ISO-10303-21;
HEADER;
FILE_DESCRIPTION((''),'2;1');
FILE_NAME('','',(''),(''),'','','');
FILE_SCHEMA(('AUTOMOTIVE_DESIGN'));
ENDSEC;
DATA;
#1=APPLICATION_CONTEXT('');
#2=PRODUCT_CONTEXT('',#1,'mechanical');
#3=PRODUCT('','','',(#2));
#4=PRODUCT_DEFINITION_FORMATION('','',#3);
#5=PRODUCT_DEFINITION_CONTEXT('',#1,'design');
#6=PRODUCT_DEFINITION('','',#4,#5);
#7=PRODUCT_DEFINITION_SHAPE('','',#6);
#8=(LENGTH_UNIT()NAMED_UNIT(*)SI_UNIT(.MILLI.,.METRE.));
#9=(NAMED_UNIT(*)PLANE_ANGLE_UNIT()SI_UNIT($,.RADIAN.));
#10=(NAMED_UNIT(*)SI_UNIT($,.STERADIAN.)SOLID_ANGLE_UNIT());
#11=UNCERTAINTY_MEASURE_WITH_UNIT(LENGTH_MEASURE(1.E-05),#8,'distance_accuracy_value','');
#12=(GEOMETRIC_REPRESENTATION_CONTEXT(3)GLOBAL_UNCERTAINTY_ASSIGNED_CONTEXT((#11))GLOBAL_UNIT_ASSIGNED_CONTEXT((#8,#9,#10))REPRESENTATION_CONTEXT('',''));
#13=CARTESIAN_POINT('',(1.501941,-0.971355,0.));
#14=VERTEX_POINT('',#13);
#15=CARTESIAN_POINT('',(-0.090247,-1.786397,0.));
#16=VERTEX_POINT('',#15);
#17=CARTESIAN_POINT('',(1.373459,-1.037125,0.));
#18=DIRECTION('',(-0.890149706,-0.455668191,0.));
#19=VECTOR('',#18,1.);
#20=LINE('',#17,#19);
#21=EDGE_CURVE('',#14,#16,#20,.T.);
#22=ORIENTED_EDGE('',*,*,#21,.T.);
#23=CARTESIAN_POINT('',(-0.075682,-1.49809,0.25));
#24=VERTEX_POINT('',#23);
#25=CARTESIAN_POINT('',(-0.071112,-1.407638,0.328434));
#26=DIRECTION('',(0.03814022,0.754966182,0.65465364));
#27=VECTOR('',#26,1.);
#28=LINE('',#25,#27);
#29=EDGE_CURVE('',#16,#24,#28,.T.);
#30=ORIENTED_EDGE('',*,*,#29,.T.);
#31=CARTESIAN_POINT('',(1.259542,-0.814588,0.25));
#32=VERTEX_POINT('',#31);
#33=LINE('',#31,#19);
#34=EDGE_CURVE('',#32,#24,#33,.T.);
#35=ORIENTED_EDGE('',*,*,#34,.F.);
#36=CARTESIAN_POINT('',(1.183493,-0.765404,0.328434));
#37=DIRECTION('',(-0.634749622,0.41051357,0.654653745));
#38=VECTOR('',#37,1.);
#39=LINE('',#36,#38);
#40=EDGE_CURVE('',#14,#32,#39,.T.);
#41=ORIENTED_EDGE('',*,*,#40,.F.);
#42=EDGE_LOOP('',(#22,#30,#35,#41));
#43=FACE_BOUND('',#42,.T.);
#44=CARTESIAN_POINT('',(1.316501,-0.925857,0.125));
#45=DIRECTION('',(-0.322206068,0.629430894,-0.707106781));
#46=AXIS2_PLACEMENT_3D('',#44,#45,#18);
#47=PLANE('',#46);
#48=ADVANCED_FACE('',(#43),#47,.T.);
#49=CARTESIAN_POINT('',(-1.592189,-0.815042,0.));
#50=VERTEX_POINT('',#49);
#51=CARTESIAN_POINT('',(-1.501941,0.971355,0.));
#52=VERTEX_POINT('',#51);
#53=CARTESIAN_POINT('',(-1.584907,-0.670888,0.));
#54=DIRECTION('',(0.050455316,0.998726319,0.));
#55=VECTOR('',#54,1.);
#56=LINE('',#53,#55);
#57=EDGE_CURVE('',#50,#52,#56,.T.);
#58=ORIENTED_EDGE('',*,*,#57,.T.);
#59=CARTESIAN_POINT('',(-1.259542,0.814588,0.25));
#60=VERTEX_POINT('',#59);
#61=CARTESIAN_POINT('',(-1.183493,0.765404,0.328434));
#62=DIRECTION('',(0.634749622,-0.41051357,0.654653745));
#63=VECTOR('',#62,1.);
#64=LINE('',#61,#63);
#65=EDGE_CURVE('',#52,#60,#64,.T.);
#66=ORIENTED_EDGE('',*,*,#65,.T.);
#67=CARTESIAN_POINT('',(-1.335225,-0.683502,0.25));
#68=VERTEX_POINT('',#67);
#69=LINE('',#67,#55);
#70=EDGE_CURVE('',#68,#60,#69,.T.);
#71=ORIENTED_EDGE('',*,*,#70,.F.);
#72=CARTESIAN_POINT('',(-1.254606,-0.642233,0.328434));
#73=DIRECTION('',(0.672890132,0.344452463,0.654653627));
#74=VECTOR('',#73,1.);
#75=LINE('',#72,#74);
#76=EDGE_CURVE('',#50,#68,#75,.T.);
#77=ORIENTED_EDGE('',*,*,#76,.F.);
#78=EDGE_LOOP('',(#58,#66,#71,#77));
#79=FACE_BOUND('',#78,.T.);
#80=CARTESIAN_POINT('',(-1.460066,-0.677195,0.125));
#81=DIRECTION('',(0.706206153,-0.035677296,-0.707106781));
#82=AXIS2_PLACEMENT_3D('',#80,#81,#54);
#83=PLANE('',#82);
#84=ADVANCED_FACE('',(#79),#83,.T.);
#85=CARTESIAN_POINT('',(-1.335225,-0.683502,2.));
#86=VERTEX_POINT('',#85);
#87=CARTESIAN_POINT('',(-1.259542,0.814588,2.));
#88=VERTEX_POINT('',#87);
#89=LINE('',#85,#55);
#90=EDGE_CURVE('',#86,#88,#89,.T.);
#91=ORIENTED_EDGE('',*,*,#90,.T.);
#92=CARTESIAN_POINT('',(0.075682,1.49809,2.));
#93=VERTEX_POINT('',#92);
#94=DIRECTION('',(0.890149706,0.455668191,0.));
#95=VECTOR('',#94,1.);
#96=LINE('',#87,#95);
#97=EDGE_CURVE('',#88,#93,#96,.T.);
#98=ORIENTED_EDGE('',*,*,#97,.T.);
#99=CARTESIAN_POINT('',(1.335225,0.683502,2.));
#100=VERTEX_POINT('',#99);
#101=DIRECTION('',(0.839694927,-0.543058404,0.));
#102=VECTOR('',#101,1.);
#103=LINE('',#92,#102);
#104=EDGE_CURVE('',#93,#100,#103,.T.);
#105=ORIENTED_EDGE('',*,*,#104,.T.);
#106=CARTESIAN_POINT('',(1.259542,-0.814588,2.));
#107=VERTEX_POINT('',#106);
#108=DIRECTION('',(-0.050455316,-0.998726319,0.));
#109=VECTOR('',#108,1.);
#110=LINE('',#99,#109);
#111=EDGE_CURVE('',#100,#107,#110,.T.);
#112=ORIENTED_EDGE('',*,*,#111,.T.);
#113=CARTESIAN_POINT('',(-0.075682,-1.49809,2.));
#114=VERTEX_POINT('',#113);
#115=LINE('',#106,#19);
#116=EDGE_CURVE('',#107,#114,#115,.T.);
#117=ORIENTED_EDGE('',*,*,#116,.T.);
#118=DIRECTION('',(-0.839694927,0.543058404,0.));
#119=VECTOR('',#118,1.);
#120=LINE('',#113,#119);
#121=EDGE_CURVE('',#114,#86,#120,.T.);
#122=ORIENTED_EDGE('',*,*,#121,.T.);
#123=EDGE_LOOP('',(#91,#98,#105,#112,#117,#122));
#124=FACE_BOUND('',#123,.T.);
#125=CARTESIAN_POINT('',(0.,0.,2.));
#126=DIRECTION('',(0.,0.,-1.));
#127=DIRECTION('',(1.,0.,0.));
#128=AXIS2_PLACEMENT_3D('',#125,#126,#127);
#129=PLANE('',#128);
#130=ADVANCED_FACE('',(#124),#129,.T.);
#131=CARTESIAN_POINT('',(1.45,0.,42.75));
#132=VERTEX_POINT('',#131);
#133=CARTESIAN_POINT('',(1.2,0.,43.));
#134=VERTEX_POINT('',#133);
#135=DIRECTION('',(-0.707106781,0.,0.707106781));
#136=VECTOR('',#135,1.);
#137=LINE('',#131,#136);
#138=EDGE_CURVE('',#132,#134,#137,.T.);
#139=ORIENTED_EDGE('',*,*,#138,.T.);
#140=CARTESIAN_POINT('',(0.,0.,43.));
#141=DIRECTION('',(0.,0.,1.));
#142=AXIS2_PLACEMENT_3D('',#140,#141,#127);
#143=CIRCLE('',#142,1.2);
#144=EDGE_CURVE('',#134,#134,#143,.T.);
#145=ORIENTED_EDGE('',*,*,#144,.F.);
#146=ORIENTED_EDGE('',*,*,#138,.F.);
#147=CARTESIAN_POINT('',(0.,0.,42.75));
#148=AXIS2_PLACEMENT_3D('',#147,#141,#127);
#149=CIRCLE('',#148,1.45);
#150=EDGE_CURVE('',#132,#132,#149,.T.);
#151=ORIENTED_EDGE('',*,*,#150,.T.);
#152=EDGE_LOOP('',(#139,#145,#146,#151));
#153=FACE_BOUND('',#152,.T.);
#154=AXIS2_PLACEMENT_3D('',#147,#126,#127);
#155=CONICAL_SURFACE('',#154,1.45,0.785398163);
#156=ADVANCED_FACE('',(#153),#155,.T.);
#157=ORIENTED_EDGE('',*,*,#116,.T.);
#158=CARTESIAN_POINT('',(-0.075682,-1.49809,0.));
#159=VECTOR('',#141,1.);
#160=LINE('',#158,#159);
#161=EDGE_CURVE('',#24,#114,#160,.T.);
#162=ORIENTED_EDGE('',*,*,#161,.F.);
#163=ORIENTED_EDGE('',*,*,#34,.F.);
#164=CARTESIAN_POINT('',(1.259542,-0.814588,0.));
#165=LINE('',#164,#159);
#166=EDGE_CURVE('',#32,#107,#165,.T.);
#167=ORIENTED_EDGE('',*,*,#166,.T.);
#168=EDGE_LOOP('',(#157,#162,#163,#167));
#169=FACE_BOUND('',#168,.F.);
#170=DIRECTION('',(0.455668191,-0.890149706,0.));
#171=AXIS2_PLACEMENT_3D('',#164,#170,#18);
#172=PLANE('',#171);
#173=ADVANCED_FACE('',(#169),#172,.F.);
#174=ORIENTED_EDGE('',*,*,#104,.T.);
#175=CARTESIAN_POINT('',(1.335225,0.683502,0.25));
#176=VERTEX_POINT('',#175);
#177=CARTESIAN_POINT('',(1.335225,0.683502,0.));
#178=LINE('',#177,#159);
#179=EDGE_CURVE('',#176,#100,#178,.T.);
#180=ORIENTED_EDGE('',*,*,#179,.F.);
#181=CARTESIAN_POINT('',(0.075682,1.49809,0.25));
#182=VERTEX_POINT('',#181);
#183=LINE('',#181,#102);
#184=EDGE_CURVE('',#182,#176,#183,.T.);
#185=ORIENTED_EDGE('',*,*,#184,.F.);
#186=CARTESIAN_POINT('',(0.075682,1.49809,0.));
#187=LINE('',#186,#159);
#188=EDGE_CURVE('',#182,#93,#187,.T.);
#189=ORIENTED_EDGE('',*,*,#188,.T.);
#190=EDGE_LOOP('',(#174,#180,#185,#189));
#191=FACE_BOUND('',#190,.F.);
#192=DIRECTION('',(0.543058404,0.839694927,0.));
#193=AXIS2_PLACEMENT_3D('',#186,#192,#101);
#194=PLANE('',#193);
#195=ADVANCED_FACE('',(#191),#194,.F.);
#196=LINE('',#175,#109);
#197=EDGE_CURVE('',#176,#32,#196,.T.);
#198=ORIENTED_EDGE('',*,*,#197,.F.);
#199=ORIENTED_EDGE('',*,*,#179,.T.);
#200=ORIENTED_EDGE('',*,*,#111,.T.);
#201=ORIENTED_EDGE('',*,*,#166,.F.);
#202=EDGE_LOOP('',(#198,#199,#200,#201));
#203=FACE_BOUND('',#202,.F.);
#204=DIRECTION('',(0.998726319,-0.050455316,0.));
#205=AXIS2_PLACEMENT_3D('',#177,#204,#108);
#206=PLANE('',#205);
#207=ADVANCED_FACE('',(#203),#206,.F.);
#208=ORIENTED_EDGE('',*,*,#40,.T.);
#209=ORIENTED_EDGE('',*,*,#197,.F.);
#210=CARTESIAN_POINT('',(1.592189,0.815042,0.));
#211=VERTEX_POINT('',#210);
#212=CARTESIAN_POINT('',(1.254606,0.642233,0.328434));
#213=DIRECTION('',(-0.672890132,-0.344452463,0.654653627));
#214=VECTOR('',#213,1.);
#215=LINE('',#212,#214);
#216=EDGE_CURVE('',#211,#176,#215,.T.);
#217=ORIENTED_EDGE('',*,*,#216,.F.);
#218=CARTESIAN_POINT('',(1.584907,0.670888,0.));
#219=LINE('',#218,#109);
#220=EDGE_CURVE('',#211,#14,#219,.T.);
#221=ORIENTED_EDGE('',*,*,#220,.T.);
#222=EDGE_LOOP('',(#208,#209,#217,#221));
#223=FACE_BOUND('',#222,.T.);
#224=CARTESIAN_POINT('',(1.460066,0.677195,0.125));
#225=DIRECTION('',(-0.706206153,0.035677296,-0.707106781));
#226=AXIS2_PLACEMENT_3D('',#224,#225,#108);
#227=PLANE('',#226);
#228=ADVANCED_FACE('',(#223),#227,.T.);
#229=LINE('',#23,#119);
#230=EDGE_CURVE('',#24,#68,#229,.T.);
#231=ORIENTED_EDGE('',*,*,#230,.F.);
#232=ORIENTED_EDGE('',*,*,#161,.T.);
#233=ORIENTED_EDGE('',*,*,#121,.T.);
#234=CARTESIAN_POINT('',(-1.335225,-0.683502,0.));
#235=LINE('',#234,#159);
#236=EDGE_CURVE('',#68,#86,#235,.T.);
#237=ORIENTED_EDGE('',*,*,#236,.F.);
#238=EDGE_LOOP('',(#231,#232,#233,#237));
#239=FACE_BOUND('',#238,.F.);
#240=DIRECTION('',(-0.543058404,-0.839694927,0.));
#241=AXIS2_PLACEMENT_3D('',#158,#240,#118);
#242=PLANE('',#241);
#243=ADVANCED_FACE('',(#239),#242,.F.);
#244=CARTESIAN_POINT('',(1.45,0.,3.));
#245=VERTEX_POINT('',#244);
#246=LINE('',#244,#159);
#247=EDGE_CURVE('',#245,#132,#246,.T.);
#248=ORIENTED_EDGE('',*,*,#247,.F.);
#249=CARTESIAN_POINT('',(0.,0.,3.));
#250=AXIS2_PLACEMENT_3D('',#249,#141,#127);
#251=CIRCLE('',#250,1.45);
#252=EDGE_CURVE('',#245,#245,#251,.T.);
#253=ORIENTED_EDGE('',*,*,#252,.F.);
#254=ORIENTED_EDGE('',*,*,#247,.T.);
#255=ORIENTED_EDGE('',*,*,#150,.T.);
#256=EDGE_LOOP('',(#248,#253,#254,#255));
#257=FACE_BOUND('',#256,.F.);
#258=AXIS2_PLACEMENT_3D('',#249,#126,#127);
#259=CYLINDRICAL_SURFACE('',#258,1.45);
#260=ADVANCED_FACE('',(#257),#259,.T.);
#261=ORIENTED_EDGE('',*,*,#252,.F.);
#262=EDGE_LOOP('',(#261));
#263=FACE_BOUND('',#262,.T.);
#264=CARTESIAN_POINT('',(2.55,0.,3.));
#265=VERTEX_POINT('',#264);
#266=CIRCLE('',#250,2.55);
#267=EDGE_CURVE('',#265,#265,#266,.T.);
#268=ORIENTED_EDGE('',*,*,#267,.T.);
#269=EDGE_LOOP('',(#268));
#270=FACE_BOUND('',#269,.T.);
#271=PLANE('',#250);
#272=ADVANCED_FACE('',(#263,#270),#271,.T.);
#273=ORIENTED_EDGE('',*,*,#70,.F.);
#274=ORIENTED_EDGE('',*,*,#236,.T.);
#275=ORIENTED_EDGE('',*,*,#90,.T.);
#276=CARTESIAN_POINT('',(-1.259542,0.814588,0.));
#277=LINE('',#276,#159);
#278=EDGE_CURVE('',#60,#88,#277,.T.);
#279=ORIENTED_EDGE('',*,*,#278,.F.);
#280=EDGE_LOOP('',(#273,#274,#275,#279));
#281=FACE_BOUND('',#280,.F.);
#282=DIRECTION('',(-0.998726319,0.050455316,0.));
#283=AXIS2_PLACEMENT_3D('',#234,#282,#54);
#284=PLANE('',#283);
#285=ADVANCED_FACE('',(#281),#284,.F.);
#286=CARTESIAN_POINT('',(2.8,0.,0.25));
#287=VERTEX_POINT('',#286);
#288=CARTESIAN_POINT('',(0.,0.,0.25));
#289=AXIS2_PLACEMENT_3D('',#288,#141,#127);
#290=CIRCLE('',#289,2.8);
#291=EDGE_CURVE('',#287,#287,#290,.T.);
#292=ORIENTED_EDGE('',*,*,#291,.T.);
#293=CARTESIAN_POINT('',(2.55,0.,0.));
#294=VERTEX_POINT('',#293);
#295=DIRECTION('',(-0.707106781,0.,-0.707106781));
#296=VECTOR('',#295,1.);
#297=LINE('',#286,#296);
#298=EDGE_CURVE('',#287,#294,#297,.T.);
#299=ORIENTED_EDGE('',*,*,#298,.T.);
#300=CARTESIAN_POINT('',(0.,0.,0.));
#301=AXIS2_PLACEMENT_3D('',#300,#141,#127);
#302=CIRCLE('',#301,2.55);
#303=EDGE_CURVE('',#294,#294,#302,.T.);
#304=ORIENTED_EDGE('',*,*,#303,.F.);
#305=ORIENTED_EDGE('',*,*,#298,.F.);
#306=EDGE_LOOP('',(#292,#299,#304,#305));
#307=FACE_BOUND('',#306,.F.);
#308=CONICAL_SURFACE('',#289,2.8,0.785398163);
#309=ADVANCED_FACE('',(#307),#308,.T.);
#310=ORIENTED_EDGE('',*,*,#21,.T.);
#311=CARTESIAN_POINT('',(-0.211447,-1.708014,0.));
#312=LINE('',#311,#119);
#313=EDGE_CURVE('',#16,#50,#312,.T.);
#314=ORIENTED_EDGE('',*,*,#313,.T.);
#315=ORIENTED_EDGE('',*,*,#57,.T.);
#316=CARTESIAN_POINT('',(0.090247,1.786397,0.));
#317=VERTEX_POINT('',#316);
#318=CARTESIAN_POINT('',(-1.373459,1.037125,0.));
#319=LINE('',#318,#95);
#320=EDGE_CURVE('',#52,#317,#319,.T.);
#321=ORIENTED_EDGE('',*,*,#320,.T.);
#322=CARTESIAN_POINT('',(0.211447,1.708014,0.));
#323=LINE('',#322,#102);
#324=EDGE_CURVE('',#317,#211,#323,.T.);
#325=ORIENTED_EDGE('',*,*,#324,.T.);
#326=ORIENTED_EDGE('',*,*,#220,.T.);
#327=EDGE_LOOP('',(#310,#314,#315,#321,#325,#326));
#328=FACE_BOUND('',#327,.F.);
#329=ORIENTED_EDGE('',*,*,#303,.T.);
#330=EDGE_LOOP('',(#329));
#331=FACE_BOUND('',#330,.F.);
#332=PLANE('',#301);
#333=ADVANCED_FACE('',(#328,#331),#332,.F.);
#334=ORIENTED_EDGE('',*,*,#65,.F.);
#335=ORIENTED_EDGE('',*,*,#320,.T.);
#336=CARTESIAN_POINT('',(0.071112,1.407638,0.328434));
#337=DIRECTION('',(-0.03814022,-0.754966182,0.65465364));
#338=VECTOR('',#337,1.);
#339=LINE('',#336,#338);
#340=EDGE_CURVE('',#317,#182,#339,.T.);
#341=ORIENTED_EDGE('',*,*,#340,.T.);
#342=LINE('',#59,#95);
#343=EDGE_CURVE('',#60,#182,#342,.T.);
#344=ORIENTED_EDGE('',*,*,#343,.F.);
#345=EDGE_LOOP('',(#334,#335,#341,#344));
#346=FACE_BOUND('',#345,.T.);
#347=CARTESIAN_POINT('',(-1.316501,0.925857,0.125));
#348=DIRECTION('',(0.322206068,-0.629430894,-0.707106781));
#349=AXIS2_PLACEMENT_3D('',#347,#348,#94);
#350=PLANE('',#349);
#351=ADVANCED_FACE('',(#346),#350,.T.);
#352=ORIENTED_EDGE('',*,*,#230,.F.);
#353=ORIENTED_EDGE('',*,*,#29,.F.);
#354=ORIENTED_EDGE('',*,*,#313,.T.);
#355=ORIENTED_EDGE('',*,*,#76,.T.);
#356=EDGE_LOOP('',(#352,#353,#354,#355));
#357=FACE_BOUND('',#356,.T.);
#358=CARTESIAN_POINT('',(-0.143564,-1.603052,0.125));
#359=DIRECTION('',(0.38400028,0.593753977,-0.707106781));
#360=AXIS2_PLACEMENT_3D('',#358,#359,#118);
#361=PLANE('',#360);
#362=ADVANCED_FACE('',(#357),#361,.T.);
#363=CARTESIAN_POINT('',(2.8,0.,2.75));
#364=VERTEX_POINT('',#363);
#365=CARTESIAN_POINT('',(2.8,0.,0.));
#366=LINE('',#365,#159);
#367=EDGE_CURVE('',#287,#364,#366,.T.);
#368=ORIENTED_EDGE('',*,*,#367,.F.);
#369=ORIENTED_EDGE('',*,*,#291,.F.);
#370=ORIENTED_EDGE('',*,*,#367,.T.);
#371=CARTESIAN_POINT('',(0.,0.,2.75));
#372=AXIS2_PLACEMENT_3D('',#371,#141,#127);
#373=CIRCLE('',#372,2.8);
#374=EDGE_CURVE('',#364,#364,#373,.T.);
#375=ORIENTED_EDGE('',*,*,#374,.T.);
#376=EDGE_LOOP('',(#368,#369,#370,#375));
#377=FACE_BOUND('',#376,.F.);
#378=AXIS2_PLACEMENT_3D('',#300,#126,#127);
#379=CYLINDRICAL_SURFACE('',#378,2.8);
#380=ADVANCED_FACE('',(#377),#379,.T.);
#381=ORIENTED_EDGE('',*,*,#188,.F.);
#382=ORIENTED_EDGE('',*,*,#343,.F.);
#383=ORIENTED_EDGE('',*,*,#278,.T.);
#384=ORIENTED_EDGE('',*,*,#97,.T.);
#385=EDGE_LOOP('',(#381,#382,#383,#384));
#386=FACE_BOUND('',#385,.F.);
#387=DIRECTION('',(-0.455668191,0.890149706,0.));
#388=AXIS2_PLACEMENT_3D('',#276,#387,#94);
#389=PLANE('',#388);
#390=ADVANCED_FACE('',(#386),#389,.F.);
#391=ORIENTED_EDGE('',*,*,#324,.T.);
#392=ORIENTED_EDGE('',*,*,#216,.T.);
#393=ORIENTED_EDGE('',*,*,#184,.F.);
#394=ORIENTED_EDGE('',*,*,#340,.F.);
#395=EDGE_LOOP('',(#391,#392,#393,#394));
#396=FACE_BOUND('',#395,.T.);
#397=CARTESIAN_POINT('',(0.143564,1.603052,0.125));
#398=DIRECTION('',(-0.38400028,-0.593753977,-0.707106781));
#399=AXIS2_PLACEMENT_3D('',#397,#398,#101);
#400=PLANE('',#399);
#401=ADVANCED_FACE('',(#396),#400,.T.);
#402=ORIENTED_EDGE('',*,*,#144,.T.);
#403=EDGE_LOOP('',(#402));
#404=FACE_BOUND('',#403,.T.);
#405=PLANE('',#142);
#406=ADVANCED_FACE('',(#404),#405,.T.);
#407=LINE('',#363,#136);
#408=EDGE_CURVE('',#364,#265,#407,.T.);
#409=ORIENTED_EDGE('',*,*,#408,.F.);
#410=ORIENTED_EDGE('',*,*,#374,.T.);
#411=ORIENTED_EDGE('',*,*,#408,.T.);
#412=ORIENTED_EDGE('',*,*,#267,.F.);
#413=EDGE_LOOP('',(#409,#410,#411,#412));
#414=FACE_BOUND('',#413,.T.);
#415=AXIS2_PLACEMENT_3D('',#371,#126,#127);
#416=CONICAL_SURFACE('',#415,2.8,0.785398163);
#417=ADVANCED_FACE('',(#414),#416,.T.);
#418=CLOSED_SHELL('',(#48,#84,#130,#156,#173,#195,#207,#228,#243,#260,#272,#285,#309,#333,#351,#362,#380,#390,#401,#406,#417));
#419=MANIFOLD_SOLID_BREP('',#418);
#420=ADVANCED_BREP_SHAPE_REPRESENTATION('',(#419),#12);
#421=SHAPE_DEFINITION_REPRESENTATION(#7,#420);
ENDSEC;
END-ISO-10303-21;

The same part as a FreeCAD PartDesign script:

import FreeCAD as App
import Part
import Sketcher

V = App.Vector


def edges_at(feature, points):
    """Names of the edges that pass closest to the given points."""
    edges = feature.Shape.Edges
    near = lambda p: min(range(len(edges)), key=lambda i: edges[i].distToShape(Part.Vertex(*p))[0])
    return sorted({f"Edge{near(p) + 1}" for p in points})


def add_polygon(sketch, points):
    """Adds a closed chain of lines whose ends are joined by coincident constraints."""
    first, n = sketch.GeometryCount, len(points)
    for a, b in zip(points, points[1:] + points[:1]):
        sketch.addGeometry(Part.LineSegment(App.Vector(*a, 0), App.Vector(*b, 0)), False)
    for i in range(n):
        sketch.addConstraint(Sketcher.Constraint("Coincident", first + i, 2, first + (i + 1) % n, 1))

doc = App.newDocument("Part")
body = doc.addObject("PartDesign::Body", "Body")

sketch1 = doc.addObject("Sketcher::SketchObject", "Sketch")
body.addObject(sketch1)
sketch1.AttachmentSupport = (doc.XY_Plane, [""])
sketch1.MapMode = "FlatFace"
sketch1.addGeometry(Part.Circle(V(0, 0, 0), V(0, 0, 1), 2.8), False)
sketch1.addConstraint([
    Sketcher.Constraint("Coincident", 0, 3, -1, 1),
    Sketcher.Constraint("Diameter", 0, 5.6),
])
pad1 = doc.addObject("PartDesign::Pad", "Pad")
body.addObject(pad1)
pad1.Profile = sketch1
pad1.Length = 3

sketch2 = doc.addObject("Sketcher::SketchObject", "Sketch001")
body.addObject(sketch2)
sketch2.AttachmentSupport = (doc.XY_Plane, [""])
sketch2.MapMode = "FlatFace"
sketch2.AttachmentOffset = App.Placement(V(0, 0, 3), App.Rotation())
sketch2.addGeometry(Part.Circle(V(0, 0, 0), V(0, 0, 1), 1.45), False)
sketch2.addConstraint([
    Sketcher.Constraint("Coincident", 0, 3, -1, 1),
    Sketcher.Constraint("Diameter", 0, 2.9),
])
pad2 = doc.addObject("PartDesign::Pad", "Pad001")
body.addObject(pad2)
pad2.Profile = sketch2
pad2.Length = 40

sketch3 = doc.addObject("Sketcher::SketchObject", "Sketch002")
body.addObject(sketch3)
sketch3.AttachmentSupport = (doc.XY_Plane, [""])
sketch3.MapMode = "FlatFace"
add_polygon(sketch3, [(1.259542, -0.814588), (-0.075682, -1.49809), (-1.335225, -0.683502), (-1.259542, 0.814588), (0.075682, 1.49809), (1.335225, 0.683502)])
sketch3.addConstraint([
    Sketcher.Constraint("Symmetric", 0, 2, 3, 2, -1, 1),
    Sketcher.Constraint("Symmetric", 1, 2, 4, 2, -1, 1),
    Sketcher.Constraint("Symmetric", 2, 2, 5, 2, -1, 1),
    Sketcher.Constraint("Equal", 0, 1),
    Sketcher.Constraint("Equal", 1, 2),
    Sketcher.Constraint("Distance", 0, 1.499999),
    Sketcher.Constraint("DistanceY", 2, 2, 3, 2, 0.683502),
    Sketcher.Constraint("DistanceY", 0, 2, -1, 1, 1.49809),
    Sketcher.Constraint("DistanceX", 2, 2, -1, 1, 1.259542),
])
pocket1 = doc.addObject("PartDesign::Pocket", "Pocket")
body.addObject(pocket1)
pocket1.Profile = sketch3
pocket1.Length = 2
pocket1.Reversed = True
doc.recompute()

chamfer = doc.addObject("PartDesign::Chamfer", "Chamfer")
body.addObject(chamfer)
chamfer.Base = (pocket1, edges_at(pocket1, [
    (-2.8, 0, 3),
    (-2.8, 0, 0),
    (1.297, -0.066, 0),
    (0.705, 1.091, 0),
    (-0.592, 1.156, 0),
    (-1.297, 0.066, 0),
    (-0.705, -1.091, 0),
    (0.592, -1.156, 0),
    (-1.45, 0, 43),
]))
chamfer.Size = 0.25

doc.recompute()
